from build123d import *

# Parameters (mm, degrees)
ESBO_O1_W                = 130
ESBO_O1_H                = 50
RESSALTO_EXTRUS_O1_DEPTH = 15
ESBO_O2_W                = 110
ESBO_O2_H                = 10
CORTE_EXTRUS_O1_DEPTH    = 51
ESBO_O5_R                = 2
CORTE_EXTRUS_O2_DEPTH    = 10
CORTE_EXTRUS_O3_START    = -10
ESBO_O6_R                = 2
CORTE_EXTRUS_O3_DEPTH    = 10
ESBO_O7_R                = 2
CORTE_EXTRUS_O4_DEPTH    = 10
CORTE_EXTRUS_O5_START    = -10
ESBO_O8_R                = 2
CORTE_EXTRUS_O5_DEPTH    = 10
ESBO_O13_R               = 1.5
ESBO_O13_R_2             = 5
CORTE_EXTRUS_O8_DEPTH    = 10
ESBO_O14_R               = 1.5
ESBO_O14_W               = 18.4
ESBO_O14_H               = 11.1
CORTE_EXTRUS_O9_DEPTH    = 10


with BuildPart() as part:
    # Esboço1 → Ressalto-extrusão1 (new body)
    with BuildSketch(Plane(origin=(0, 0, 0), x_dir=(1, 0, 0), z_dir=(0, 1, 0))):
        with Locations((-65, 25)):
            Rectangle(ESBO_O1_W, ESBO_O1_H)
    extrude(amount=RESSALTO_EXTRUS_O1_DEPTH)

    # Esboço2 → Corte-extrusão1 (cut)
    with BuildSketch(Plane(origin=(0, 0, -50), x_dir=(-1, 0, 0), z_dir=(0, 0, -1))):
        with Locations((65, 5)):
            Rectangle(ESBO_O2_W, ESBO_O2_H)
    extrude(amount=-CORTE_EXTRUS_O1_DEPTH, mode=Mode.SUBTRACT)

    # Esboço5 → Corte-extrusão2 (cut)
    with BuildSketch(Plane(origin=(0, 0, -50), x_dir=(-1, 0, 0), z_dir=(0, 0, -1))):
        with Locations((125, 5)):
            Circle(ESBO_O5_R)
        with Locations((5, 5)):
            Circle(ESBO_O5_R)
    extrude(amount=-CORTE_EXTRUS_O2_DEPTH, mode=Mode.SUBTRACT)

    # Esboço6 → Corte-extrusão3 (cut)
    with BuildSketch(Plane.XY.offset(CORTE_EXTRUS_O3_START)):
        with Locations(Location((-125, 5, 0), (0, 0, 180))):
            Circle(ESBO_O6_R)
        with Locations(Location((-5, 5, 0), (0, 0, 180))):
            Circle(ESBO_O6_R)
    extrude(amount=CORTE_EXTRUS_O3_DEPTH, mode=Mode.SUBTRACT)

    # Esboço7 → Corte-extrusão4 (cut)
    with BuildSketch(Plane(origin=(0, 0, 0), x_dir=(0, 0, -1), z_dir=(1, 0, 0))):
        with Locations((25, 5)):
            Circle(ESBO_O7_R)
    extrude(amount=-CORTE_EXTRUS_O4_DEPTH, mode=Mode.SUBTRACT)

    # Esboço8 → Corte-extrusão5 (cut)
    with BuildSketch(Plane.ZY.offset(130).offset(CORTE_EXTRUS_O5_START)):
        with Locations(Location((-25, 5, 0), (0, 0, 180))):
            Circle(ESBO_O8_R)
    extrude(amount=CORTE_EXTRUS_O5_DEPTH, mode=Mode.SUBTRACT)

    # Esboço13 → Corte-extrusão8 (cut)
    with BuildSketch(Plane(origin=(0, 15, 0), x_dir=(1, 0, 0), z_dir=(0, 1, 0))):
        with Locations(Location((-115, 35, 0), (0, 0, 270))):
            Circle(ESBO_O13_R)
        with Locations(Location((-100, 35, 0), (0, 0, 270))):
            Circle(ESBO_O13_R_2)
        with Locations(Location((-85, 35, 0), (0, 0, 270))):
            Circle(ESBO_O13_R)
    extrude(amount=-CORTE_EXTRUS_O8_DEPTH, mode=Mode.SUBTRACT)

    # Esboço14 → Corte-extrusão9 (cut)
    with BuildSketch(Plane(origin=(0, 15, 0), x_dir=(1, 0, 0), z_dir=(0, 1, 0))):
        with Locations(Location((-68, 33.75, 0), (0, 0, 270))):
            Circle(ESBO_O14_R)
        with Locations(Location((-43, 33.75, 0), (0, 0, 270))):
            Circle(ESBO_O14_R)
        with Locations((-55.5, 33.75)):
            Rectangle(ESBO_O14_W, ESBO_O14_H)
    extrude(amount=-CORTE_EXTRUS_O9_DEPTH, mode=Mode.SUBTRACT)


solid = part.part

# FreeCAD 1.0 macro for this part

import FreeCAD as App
import Part
import Sketcher

V = App.Vector


def add_polygon(sketch, points):
    """Adds a closed chain of lines whose ends are joined by coincident constraints."""
    first, n = sketch.GeometryCount, len(points)
    for a, b in zip(points, points[1:] + points[:1]):
        sketch.addGeometry(Part.LineSegment(App.Vector(*a, 0), App.Vector(*b, 0)), False)
    for i in range(n):
        sketch.addConstraint(Sketcher.Constraint("Coincident", first + i, 2, first + (i + 1) % n, 1))

doc = App.newDocument("Part")
body = doc.addObject("PartDesign::Body", "Body")

sketch1 = doc.addObject("Sketcher::SketchObject", "Sketch")
body.addObject(sketch1)
sketch1.AttachmentSupport = (doc.XZ_Plane, [""])
sketch1.MapMode = "FlatFace"
add_polygon(sketch1, [(-130, -50), (-130, 0), (0, 0), (0, -50)])
sketch1.addConstraint([
    Sketcher.Constraint("Vertical", 0),
    Sketcher.Constraint("Horizontal", 1),
    Sketcher.Constraint("Vertical", 2),
    Sketcher.Constraint("Horizontal", 3),
    Sketcher.Constraint("Coincident", 1, 2, -1, 1),
    Sketcher.Constraint("DistanceX", 1, 1, 1, 2, 130.0),
    Sketcher.Constraint("DistanceY", 0, 1, 0, 2, 50.0),
])
pad1 = doc.addObject("PartDesign::Pad", "Pad")
body.addObject(pad1)
pad1.Profile = sketch1
pad1.Length = 15
pad1.Reversed = True

sketch2 = doc.addObject("Sketcher::SketchObject", "Sketch001")
body.addObject(sketch2)
sketch2.AttachmentSupport = (doc.XY_Plane, [""])
sketch2.MapMode = "FlatFace"
sketch2.AttachmentOffset = App.Placement(V(0, 0, -50), App.Rotation())
add_polygon(sketch2, [(-10, 10), (-10, 0), (-120, 0), (-120, 10)])
sketch2.addConstraint([
    Sketcher.Constraint("Vertical", 0),
    Sketcher.Constraint("Horizontal", 1),
    Sketcher.Constraint("Vertical", 2),
    Sketcher.Constraint("Horizontal", 3),
    Sketcher.Constraint("PointOnObject", 0, 2, -1),
    Sketcher.Constraint("DistanceX", 1, 2, 1, 1, 110.0),
    Sketcher.Constraint("DistanceY", 0, 2, 0, 1, 10.0),
    Sketcher.Constraint("DistanceX", 0, 2, -1, 1, 10.0),
])
pocket1 = doc.addObject("PartDesign::Pocket", "Pocket")
body.addObject(pocket1)
pocket1.Profile = sketch2
pocket1.Length = 51
pocket1.Reversed = True

sketch3 = doc.addObject("Sketcher::SketchObject", "Sketch002")
body.addObject(sketch3)
sketch3.AttachmentSupport = (doc.XY_Plane, [""])
sketch3.MapMode = "FlatFace"
sketch3.AttachmentOffset = App.Placement(V(0, 0, -50), App.Rotation())
sketch3.addGeometry([
    Part.Circle(V(-125, 5, 0), V(0, 0, 1), 2),
    Part.Circle(V(-5, 5, 0), V(0, 0, 1), 2),
], False)
sketch3.addConstraint([
    Sketcher.Constraint("Equal", 0, 1),
    Sketcher.Constraint("Horizontal", 0, 3, 1, 3),
    Sketcher.Constraint("Diameter", 0, 4.0),
    Sketcher.Constraint("DistanceX", 0, 3, -1, 1, 125.0),
    Sketcher.Constraint("DistanceY", -1, 1, 0, 3, 5.0),
    Sketcher.Constraint("DistanceX", 1, 3, -1, 1, 5.0),
])
pocket2 = doc.addObject("PartDesign::Pocket", "Pocket001")
body.addObject(pocket2)
pocket2.Profile = sketch3
pocket2.Length = 10
pocket2.Reversed = True

sketch4 = doc.addObject("Sketcher::SketchObject", "Sketch003")
body.addObject(sketch4)
sketch4.AttachmentSupport = (doc.XY_Plane, [""])
sketch4.MapMode = "FlatFace"
sketch4.AttachmentOffset = App.Placement(V(0, 0, -10), App.Rotation())
sketch4.addGeometry([
    Part.Circle(V(-125, 5, 0), V(0, 0, 1), 2),
    Part.Circle(V(-5, 5, 0), V(0, 0, 1), 2),
], False)
sketch4.addConstraint([
    Sketcher.Constraint("Equal", 0, 1),
    Sketcher.Constraint("Horizontal", 0, 3, 1, 3),
    Sketcher.Constraint("Diameter", 0, 4.0),
    Sketcher.Constraint("DistanceX", 0, 3, -1, 1, 125.0),
    Sketcher.Constraint("DistanceY", -1, 1, 0, 3, 5.0),
    Sketcher.Constraint("DistanceX", 1, 3, -1, 1, 5.0),
])
pocket3 = doc.addObject("PartDesign::Pocket", "Pocket002")
body.addObject(pocket3)
pocket3.Profile = sketch4
pocket3.Length = 10
pocket3.Reversed = True

sketch5 = doc.addObject("Sketcher::SketchObject", "Sketch004")
body.addObject(sketch5)
sketch5.AttachmentSupport = (doc.YZ_Plane, [""])
sketch5.MapMode = "FlatFace"
sketch5.addGeometry(Part.Circle(V(5, -25, 0), V(0, 0, 1), 2), False)
sketch5.addConstraint([
    Sketcher.Constraint("Diameter", 0, 4.0),
    Sketcher.Constraint("DistanceX", -1, 1, 0, 3, 5.0),
    Sketcher.Constraint("DistanceY", 0, 3, -1, 1, 25.0),
])
pocket4 = doc.addObject("PartDesign::Pocket", "Pocket003")
body.addObject(pocket4)
pocket4.Profile = sketch5
pocket4.Length = 10

sketch6 = doc.addObject("Sketcher::SketchObject", "Sketch005")
body.addObject(sketch6)
sketch6.AttachmentSupport = (doc.YZ_Plane, [""])
sketch6.MapMode = "FlatFace"
sketch6.AttachmentOffset = App.Placement(V(0, 0, -120), App.Rotation())
sketch6.addGeometry(Part.Circle(V(5, -25, 0), V(0, 0, 1), 2), False)
sketch6.addConstraint([
    Sketcher.Constraint("Diameter", 0, 4.0),
    Sketcher.Constraint("DistanceX", -1, 1, 0, 3, 5.0),
    Sketcher.Constraint("DistanceY", 0, 3, -1, 1, 25.0),
])
pocket5 = doc.addObject("PartDesign::Pocket", "Pocket004")
body.addObject(pocket5)
pocket5.Profile = sketch6
pocket5.Length = 10

sketch7 = doc.addObject("Sketcher::SketchObject", "Sketch006")
body.addObject(sketch7)
sketch7.AttachmentSupport = (doc.XZ_Plane, [""])
sketch7.MapMode = "FlatFace"
sketch7.AttachmentOffset = App.Placement(V(0, 0, -15), App.Rotation())
sketch7.addGeometry([
    Part.Circle(V(-115, -35, 0), V(0, 0, 1), 1.5),
    Part.Circle(V(-100, -35, 0), V(0, 0, 1), 5),
    Part.Circle(V(-85, -35, 0), V(0, 0, 1), 1.5),
], False)
sketch7.addConstraint([
    Sketcher.Constraint("Equal", 0, 2),
    Sketcher.Constraint("Horizontal", 0, 3, 1, 3),
    Sketcher.Constraint("Horizontal", 1, 3, 2, 3),
    Sketcher.Constraint("Diameter", 0, 3.0),
    Sketcher.Constraint("Diameter", 1, 10.0),
    Sketcher.Constraint("DistanceX", 0, 3, -1, 1, 115.0),
    Sketcher.Constraint("DistanceY", 0, 3, -1, 1, 35.0),
    Sketcher.Constraint("DistanceX", 1, 3, -1, 1, 100.0),
    Sketcher.Constraint("DistanceX", 2, 3, -1, 1, 85.0),
])
pocket6 = doc.addObject("PartDesign::Pocket", "Pocket005")
body.addObject(pocket6)
pocket6.Profile = sketch7
pocket6.Length = 10
pocket6.Reversed = True

sketch8 = doc.addObject("Sketcher::SketchObject", "Sketch007")
body.addObject(sketch8)
sketch8.AttachmentSupport = (doc.XZ_Plane, [""])
sketch8.MapMode = "FlatFace"
sketch8.AttachmentOffset = App.Placement(V(0, 0, -15), App.Rotation())
sketch8.addGeometry(Part.Circle(V(-68, -33.8, 0), V(0, 0, 1), 1.5), False)
sketch8.addGeometry(Part.Circle(V(-43, -33.8, 0), V(0, 0, 1), 1.5), False)
add_polygon(sketch8, [(-64.7, -39.3), (-64.7, -28.2), (-46.3, -28.2), (-46.3, -39.3)])
sketch8.addConstraint([
    Sketcher.Constraint("Vertical", 2),
    Sketcher.Constraint("Horizontal", 3),
    Sketcher.Constraint("Vertical", 4),
    Sketcher.Constraint("Horizontal", 5),
    Sketcher.Constraint("Equal", 0, 1),
    Sketcher.Constraint("Horizontal", 0, 3, 1, 3),
    Sketcher.Constraint("Diameter", 0, 3.0),
    Sketcher.Constraint("DistanceX", 3, 1, 3, 2, 18.4),
    Sketcher.Constraint("DistanceY", 2, 1, 2, 2, 11.1),
    Sketcher.Constraint("DistanceX", 0, 3, -1, 1, 68.0),
    Sketcher.Constraint("DistanceX", 1, 3, -1, 1, 43.0),
    Sketcher.Constraint("DistanceX", 2, 2, -1, 1, 64.7),
    Sketcher.Constraint("DistanceY", 2, 2, -1, 1, 28.2),
    Sketcher.Constraint("DistanceY", 0, 3, -1, 1, 33.75),
])
pocket7 = doc.addObject("PartDesign::Pocket", "Pocket006")
body.addObject(pocket7)
pocket7.Profile = sketch8
pocket7.Length = 10
pocket7.Reversed = True

doc.recompute()
